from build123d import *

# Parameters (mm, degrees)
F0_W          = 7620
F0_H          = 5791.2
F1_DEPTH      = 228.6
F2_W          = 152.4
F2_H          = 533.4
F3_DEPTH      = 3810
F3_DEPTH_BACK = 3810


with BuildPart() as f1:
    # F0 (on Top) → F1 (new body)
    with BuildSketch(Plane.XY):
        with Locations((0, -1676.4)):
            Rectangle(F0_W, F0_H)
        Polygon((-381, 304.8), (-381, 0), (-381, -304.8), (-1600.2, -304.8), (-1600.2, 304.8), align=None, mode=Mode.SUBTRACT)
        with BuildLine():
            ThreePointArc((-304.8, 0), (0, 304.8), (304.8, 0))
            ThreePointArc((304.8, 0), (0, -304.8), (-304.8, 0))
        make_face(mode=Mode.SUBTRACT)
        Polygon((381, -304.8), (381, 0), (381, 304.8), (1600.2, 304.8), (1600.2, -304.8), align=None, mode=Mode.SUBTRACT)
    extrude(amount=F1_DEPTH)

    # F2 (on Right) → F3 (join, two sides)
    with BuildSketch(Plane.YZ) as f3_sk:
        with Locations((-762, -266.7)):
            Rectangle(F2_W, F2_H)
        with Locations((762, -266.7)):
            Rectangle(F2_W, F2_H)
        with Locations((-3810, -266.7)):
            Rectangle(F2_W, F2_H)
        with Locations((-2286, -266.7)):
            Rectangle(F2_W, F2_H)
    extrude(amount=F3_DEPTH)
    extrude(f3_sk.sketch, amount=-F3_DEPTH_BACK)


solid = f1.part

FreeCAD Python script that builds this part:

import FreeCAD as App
import Part
import Sketcher
from FreeCAD import Vector
Q = App.Units.Quantity


def add_polygon(sketch, points):
    """Adds a closed chain of lines whose ends are joined by coincident constraints."""
    first, n = sketch.GeometryCount, len(points)
    for a, b in zip(points, points[1:] + points[:1]):
        sketch.addGeometry(Part.LineSegment(App.Vector(*a, 0), App.Vector(*b, 0)), False)
    for i in range(n):
        sketch.addConstraint(Sketcher.Constraint("Coincident", first + i, 2, first + (i + 1) % n, 1))

doc = App.newDocument("Part")
body = doc.addObject("PartDesign::Body", "Body")

sketch1 = body.newObject("Sketcher::SketchObject", "Sketch")
sketch1.AttachmentSupport = (doc.getObject("XY_Plane"), [""])
sketch1.MapMode = "FlatFace"
add_polygon(sketch1, [(-3810, 1219), (-3810, -4572), (3810, -4572), (3810, 1219)])
add_polygon(sketch1, [(-1600, 305), (-381, 305), (-381, -305), (-1600, -305)])
sketch1.addGeometry(Part.Circle(Vector(0, 0, 0), Vector(0, 0, 1), 305), False)
add_polygon(sketch1, [(1600, -305), (381, -305), (381, 305), (1600, 305)])
sketch1.addConstraint(Sketcher.Constraint("Vertical", 0))
sketch1.addConstraint(Sketcher.Constraint("Horizontal", 1))
sketch1.addConstraint(Sketcher.Constraint("Vertical", 2))
sketch1.addConstraint(Sketcher.Constraint("Horizontal", 3))
sketch1.addConstraint(Sketcher.Constraint("Horizontal", 4))
sketch1.addConstraint(Sketcher.Constraint("Vertical", 5))
sketch1.addConstraint(Sketcher.Constraint("Horizontal", 6))
sketch1.addConstraint(Sketcher.Constraint("Vertical", 7))
sketch1.addConstraint(Sketcher.Constraint("Horizontal", 9))
sketch1.addConstraint(Sketcher.Constraint("Vertical", 10))
sketch1.addConstraint(Sketcher.Constraint("Horizontal", 11))
sketch1.addConstraint(Sketcher.Constraint("Vertical", 12))
sketch1.addConstraint(Sketcher.Constraint("Coincident", 8, 3, -1, 1))
sketch1.addConstraint(Sketcher.Constraint("Symmetric", 4, 2, 9, 2, -1, 1))
sketch1.addConstraint(Sketcher.Constraint("Symmetric", 6, 2, 11, 2, -1, 1))
sketch1.addConstraint(Sketcher.Constraint("Horizontal", 6, 2, 9, 2))
sketch1.addConstraint(Sketcher.Constraint("Diameter", 8, Q("24 in")))
sketch1.addConstraint(Sketcher.Constraint("DistanceX", 1, 1, 1, 2, Q("300 in")))
sketch1.addConstraint(Sketcher.Constraint("DistanceX", 4, 1, 4, 2, Q("48 in")))
sketch1.addConstraint(Sketcher.Constraint("DistanceY", 0, 2, 0, 1, Q("228 in")))
sketch1.addConstraint(Sketcher.Constraint("DistanceY", 5, 2, 5, 1, Q("24 in")))
sketch1.addConstraint(Sketcher.Constraint("DistanceX", 0, 2, -1, 1, Q("150 in")))
sketch1.addConstraint(Sketcher.Constraint("DistanceY", 0, 2, -1, 1, Q("180 in")))
sketch1.addConstraint(Sketcher.Constraint("DistanceX", 4, 2, -1, 1, Q("15 in")))
pad1 = body.newObject("PartDesign::Pad", "Pad")
pad1.Profile = sketch1
pad1.Length = Q("9 in")

sketch2 = body.newObject("Sketcher::SketchObject", "Sketch001")
sketch2.AttachmentSupport = (doc.getObject("YZ_Plane"), [""])
sketch2.MapMode = "FlatFace"
add_polygon(sketch2, [(-838, 0), (-838, -533), (-686, -533), (-686, 0)])
add_polygon(sketch2, [(686, 0), (686, -533), (838, -533), (838, 0)])
add_polygon(sketch2, [(-3886, 0), (-3886, -533), (-3734, -533), (-3734, 0)])
add_polygon(sketch2, [(-2362, 0), (-2362, -533), (-2210, -533), (-2210, 0)])
sketch2.addConstraint(Sketcher.Constraint("Vertical", 0))
sketch2.addConstraint(Sketcher.Constraint("Horizontal", 1))
sketch2.addConstraint(Sketcher.Constraint("Vertical", 2))
sketch2.addConstraint(Sketcher.Constraint("Horizontal", 3))
sketch2.addConstraint(Sketcher.Constraint("Vertical", 4))
sketch2.addConstraint(Sketcher.Constraint("Horizontal", 5))
sketch2.addConstraint(Sketcher.Constraint("Vertical", 6))
sketch2.addConstraint(Sketcher.Constraint("Horizontal", 7))
sketch2.addConstraint(Sketcher.Constraint("Vertical", 8))
sketch2.addConstraint(Sketcher.Constraint("Horizontal", 9))
sketch2.addConstraint(Sketcher.Constraint("Vertical", 10))
sketch2.addConstraint(Sketcher.Constraint("Horizontal", 11))
sketch2.addConstraint(Sketcher.Constraint("Vertical", 12))
sketch2.addConstraint(Sketcher.Constraint("Horizontal", 13))
sketch2.addConstraint(Sketcher.Constraint("Vertical", 14))
sketch2.addConstraint(Sketcher.Constraint("Horizontal", 15))
sketch2.addConstraint(Sketcher.Constraint("Symmetric", 3, 2, 6, 2, -1, 1))
sketch2.addConstraint(Sketcher.Constraint("Symmetric", 1, 2, 4, 2, -2))
sketch2.addConstraint(Sketcher.Constraint("PointOnObject", 2, 2, -1))
sketch2.addConstraint(Sketcher.Constraint("PointOnObject", 10, 2, -1))
sketch2.addConstraint(Sketcher.Constraint("PointOnObject", 14, 2, -1))
sketch2.addConstraint(Sketcher.Constraint("Horizontal", 5, 2, 8, 2))
sketch2.addConstraint(Sketcher.Constraint("Horizontal", 9, 2, 12, 2))
sketch2.addConstraint(Sketcher.Constraint("Equal", 7, 9))
sketch2.addConstraint(Sketcher.Constraint("Equal", 11, 13))
sketch2.addConstraint(Sketcher.Constraint("DistanceX", 1, 1, 1, 2, Q("6 in")))
sketch2.addConstraint(Sketcher.Constraint("DistanceY", 0, 2, 0, 1, Q("21 in")))
sketch2.addConstraint(Sketcher.Constraint("DistanceX", 0, 2, -1, 1, Q("33 in")))
sketch2.addConstraint(Sketcher.Constraint("DistanceX", 8, 2, -1, 1, Q("153 in")))
sketch2.addConstraint(Sketcher.Constraint("DistanceX", 12, 2, -1, 1, Q("93 in")))
pad2 = body.newObject("PartDesign::Pad", "Pad001")
pad2.Profile = sketch2
pad2.Type = "TwoLengths"
pad2.Length = Q("150 in")
pad2.Length2 = Q("150 in")

doc.recompute()
